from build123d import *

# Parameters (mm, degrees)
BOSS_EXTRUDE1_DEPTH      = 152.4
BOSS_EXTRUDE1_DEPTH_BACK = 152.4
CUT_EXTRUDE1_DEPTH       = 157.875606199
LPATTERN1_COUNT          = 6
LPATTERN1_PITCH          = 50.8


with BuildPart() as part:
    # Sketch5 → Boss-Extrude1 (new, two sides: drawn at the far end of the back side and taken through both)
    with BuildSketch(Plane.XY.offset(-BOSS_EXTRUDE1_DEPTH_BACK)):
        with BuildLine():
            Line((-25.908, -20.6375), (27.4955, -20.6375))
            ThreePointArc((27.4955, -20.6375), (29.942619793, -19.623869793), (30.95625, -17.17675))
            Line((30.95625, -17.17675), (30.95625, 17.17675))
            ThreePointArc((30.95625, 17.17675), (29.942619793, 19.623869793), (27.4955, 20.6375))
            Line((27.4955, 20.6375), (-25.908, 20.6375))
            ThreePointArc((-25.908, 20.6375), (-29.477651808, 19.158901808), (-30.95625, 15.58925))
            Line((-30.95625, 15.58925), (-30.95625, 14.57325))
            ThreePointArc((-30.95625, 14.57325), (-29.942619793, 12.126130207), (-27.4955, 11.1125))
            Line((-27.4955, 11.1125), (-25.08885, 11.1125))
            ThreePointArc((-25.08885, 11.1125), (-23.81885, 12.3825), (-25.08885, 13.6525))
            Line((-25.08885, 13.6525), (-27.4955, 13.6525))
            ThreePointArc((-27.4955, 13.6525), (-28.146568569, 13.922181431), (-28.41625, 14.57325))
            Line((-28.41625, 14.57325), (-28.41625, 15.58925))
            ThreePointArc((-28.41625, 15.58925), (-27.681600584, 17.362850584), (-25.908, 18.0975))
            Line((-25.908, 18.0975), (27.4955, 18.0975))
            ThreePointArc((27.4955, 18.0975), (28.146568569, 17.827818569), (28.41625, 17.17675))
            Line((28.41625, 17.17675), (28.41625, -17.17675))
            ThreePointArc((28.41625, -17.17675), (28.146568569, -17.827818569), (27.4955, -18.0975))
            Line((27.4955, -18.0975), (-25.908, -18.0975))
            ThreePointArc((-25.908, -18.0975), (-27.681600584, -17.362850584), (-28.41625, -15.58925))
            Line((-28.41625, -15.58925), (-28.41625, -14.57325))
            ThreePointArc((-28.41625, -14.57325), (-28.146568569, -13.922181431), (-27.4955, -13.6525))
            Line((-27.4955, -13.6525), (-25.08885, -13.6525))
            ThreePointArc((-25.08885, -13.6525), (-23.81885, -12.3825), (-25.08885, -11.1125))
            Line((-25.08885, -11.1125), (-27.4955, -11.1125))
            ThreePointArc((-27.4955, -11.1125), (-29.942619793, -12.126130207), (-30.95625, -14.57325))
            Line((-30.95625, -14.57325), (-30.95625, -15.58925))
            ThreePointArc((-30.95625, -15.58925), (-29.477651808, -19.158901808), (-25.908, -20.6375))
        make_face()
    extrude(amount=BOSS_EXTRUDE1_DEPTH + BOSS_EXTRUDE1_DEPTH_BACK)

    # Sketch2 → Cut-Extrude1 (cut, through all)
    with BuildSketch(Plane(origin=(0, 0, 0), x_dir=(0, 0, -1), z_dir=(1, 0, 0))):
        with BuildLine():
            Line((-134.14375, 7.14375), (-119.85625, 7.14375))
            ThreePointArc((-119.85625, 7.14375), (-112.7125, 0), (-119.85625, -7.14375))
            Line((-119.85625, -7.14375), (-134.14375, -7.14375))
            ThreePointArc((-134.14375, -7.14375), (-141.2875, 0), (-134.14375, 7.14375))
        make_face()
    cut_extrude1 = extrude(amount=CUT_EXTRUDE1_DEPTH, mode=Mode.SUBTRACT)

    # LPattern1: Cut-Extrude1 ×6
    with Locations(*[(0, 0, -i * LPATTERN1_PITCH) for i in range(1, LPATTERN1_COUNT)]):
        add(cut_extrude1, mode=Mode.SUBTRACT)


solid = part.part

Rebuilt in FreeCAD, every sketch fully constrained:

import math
import FreeCAD as App
import Part
import Sketcher
Q = App.Units.Quantity

doc = App.newDocument("Part")
params = doc.addObject("Spreadsheet::Sheet", "Params")
for row, (alias, value) in enumerate([
    ("sketch1_radius", "0.05 in"),
    ("sketch1_height", "0.04 in"),
    ("pad1_length", "6 in"),
    ("pad1_length2", "6 in"),
    ("sketch2_radius", "0.28125 in"),
    ("sketch2_height", "0.5625 in"),
    ("linearpattern_pitch", "2 in"),
], start=1):
    params.set(f"A{row}", alias)
    params.set(f"B{row}", "=" + value)
    params.setAlias(f"B{row}", alias)

body = doc.addObject("PartDesign::Body", "Body")

# Sketch on XY plane
sketch1 = doc.addObject("Sketcher::SketchObject", "Sketch")
body.addObject(sketch1)
sketch1.AttachmentSupport = (doc.XY_Plane, [""])
sketch1.MapMode = "FlatFace"
sketch1.addGeometry([
    Part.LineSegment(App.Vector(-25.9, -20.6, 0), App.Vector(27.5, -20.6, 0)),  # 0
    Part.ArcOfCircle(Part.Circle(App.Vector(27.5, -17.2, 0), App.Vector(0, 0, 1), 3.5), math.radians(-90), math.radians(0)),  # 1
    Part.LineSegment(App.Vector(31, -17.2, 0), App.Vector(31, 17.2, 0)),  # 2
    Part.ArcOfCircle(Part.Circle(App.Vector(27.5, 17.2, 0), App.Vector(0, 0, 1), 3.5), math.radians(0), math.radians(90)),  # 3
    Part.LineSegment(App.Vector(27.5, 20.6, 0), App.Vector(-25.9, 20.6, 0)),  # 4
    Part.ArcOfCircle(Part.Circle(App.Vector(-25.9, 15.6, 0), App.Vector(0, 0, 1), 5), math.radians(90), math.radians(180)),  # 5
    Part.LineSegment(App.Vector(-31, 15.6, 0), App.Vector(-31, 14.6, 0)),  # 6
    Part.ArcOfCircle(Part.Circle(App.Vector(-27.5, 14.6, 0), App.Vector(0, 0, 1), 3.5), math.radians(180), math.radians(270)),  # 7
    Part.LineSegment(App.Vector(-27.5, 11.1, 0), App.Vector(-25.1, 11.1, 0)),  # 8
    Part.ArcOfCircle(Part.Circle(App.Vector(-25.1, 12.4, 0), App.Vector(0, 0, 1), 1.3), math.radians(-90), math.radians(90)),  # 9
    Part.LineSegment(App.Vector(-25.1, 13.7, 0), App.Vector(-27.5, 13.7, 0)),  # 10
    Part.ArcOfCircle(Part.Circle(App.Vector(-27.5, 14.6, 0), App.Vector(0, 0, 1), 0.9), math.radians(180), math.radians(270)),  # 11
    Part.LineSegment(App.Vector(-28.4, 14.6, 0), App.Vector(-28.4, 15.6, 0)),  # 12
    Part.ArcOfCircle(Part.Circle(App.Vector(-25.9, 15.6, 0), App.Vector(0, 0, 1), 2.5), math.radians(90), math.radians(180)),  # 13
    Part.LineSegment(App.Vector(-25.9, 18.1, 0), App.Vector(27.5, 18.1, 0)),  # 14
    Part.ArcOfCircle(Part.Circle(App.Vector(27.5, 17.2, 0), App.Vector(0, 0, 1), 0.9), math.radians(0), math.radians(90)),  # 15
    Part.LineSegment(App.Vector(28.4, 17.2, 0), App.Vector(28.4, -17.2, 0)),  # 16
    Part.ArcOfCircle(Part.Circle(App.Vector(27.5, -17.2, 0), App.Vector(0, 0, 1), 0.9), math.radians(-90), math.radians(0)),  # 17
    Part.LineSegment(App.Vector(27.5, -18.1, 0), App.Vector(-25.9, -18.1, 0)),  # 18
    Part.ArcOfCircle(Part.Circle(App.Vector(-25.9, -15.6, 0), App.Vector(0, 0, 1), 2.5), math.radians(180), math.radians(270)),  # 19
    Part.LineSegment(App.Vector(-28.4, -15.6, 0), App.Vector(-28.4, -14.6, 0)),  # 20
    Part.ArcOfCircle(Part.Circle(App.Vector(-27.5, -14.6, 0), App.Vector(0, 0, 1), 0.9), math.radians(90), math.radians(180)),  # 21
    Part.LineSegment(App.Vector(-27.5, -13.7, 0), App.Vector(-25.1, -13.7, 0)),  # 22
    Part.ArcOfCircle(Part.Circle(App.Vector(-25.1, -12.4, 0), App.Vector(0, 0, 1), 1.3), math.radians(-90), math.radians(90)),  # 23
    Part.LineSegment(App.Vector(-25.1, -11.1, 0), App.Vector(-27.5, -11.1, 0)),  # 24
    Part.ArcOfCircle(Part.Circle(App.Vector(-27.5, -14.6, 0), App.Vector(0, 0, 1), 3.5), math.radians(90), math.radians(180)),  # 25
    Part.LineSegment(App.Vector(-31, -14.6, 0), App.Vector(-31, -15.6, 0)),  # 26
    Part.ArcOfCircle(Part.Circle(App.Vector(-25.9, -15.6, 0), App.Vector(0, 0, 1), 5), math.radians(180), math.radians(270)),  # 27
], False)
sketch1.addConstraint([
    Sketcher.Constraint("Tangent", 0, 2, 1, 1),
    Sketcher.Constraint("Tangent", 1, 2, 2, 1),
    Sketcher.Constraint("Tangent", 2, 2, 3, 1),
    Sketcher.Constraint("Tangent", 3, 2, 4, 1),
    Sketcher.Constraint("Tangent", 4, 2, 5, 1),
    Sketcher.Constraint("Tangent", 5, 2, 6, 1),
    Sketcher.Constraint("Tangent", 6, 2, 7, 1),
    Sketcher.Constraint("Tangent", 7, 2, 8, 1),
    Sketcher.Constraint("Tangent", 8, 2, 9, 1),
    Sketcher.Constraint("Tangent", 9, 2, 10, 1),
    Sketcher.Constraint("Tangent", 10, 2, 11, 2),
    Sketcher.Constraint("Tangent", 11, 1, 12, 1),
    Sketcher.Constraint("Tangent", 12, 2, 13, 2),
    Sketcher.Constraint("Tangent", 13, 1, 14, 1),
    Sketcher.Constraint("Tangent", 14, 2, 15, 2),
    Sketcher.Constraint("Tangent", 15, 1, 16, 1),
    Sketcher.Constraint("Tangent", 16, 2, 17, 2),
    Sketcher.Constraint("Tangent", 17, 1, 18, 1),
    Sketcher.Constraint("Tangent", 18, 2, 19, 2),
    Sketcher.Constraint("Tangent", 19, 1, 20, 1),
    Sketcher.Constraint("Tangent", 20, 2, 21, 2),
    Sketcher.Constraint("Tangent", 21, 1, 22, 1),
    Sketcher.Constraint("Tangent", 22, 2, 23, 1),
    Sketcher.Constraint("Tangent", 23, 2, 24, 1),
    Sketcher.Constraint("Tangent", 24, 2, 25, 1),
    Sketcher.Constraint("Tangent", 25, 2, 26, 1),
    Sketcher.Constraint("Tangent", 26, 2, 27, 1),
    Sketcher.Constraint("Tangent", 27, 2, 0, 1),
    Sketcher.Constraint("Horizontal", 0),
    Sketcher.Constraint("Vertical", 2),
    Sketcher.Constraint("Horizontal", 4),
    Sketcher.Constraint("Vertical", 6),
    Sketcher.Constraint("Horizontal", 8),
    Sketcher.Constraint("Horizontal", 10),
    Sketcher.Constraint("Vertical", 12),
    Sketcher.Constraint("Horizontal", 14),
    Sketcher.Constraint("Vertical", 16),
    Sketcher.Constraint("Horizontal", 18),
    Sketcher.Constraint("Vertical", 20),
    Sketcher.Constraint("Horizontal", 22),
    Sketcher.Constraint("Horizontal", 24),
    Sketcher.Constraint("Vertical", 26),
    Sketcher.Constraint("Coincident", 11, 3, 7, 3),
    Sketcher.Constraint("Coincident", 13, 3, 5, 3),
    Sketcher.Constraint("Coincident", 15, 3, 3, 3),
    Sketcher.Constraint("Coincident", 17, 3, 1, 3),
    Sketcher.Constraint("Coincident", 25, 3, 21, 3),
    Sketcher.Constraint("Coincident", 27, 3, 19, 3),
    Sketcher.Constraint("Equal", 1, 3),
    Sketcher.Constraint("Equal", 3, 7),
    Sketcher.Constraint("Equal", 13, 19),
    Sketcher.Constraint("Equal", 17, 21),
    Sketcher.Constraint("Symmetric", 5, 3, 19, 3, -1),
    Sketcher.Constraint("Symmetric", 9, 3, 23, 3, -1),
    Sketcher.Constraint("Radius", 9, Q("0.05 in")),
    Sketcher.Constraint("DistanceY", 6, 2, 6, 1, Q("0.04 in")),
    Sketcher.Constraint("DistanceX", 5, 3, -1, 1, Q("1.02 in")),
    Sketcher.Constraint("DistanceY", 1, 3, 5, 3, Q("1.29 in")),
    Sketcher.Constraint("DistanceX", 0, 1, 0, 2, Q("2.1025 in")),
    Sketcher.Constraint("DistanceY", 2, 1, 2, 2, Q("1.3525 in")),
    Sketcher.Constraint("DistanceY", 0, 2, -1, 1, Q("0.8125 in")),
    Sketcher.Constraint("DistanceX", 5, 2, 9, 3, Q("0.231 in")),
])
sketch1.setExpression("Constraints[54]", "Params.sketch1_radius")
sketch1.setExpression("Constraints[55]", "Params.sketch1_height")
pad1 = doc.addObject("PartDesign::Pad", "Pad")
body.addObject(pad1)
pad1.Profile = sketch1
pad1.Type = "TwoLengths"
pad1.setExpression("Length", "Params.pad1_length")
pad1.setExpression("Length2", "Params.pad1_length2")

# Sketch on YZ plane
sketch2 = doc.addObject("Sketcher::SketchObject", "Sketch001")
body.addObject(sketch2)
sketch2.AttachmentSupport = (doc.YZ_Plane, [""])
sketch2.MapMode = "FlatFace"
sketch2.addGeometry([
    Part.LineSegment(App.Vector(7, 120, 0), App.Vector(7, 134, 0)),
    Part.ArcOfCircle(Part.Circle(App.Vector(0, 134, 0), App.Vector(0, 0, 1), 7), math.radians(0), math.radians(180)),
    Part.LineSegment(App.Vector(-7, 134, 0), App.Vector(-7, 120, 0)),
    Part.ArcOfCircle(Part.Circle(App.Vector(0, 120, 0), App.Vector(0, 0, 1), 7), math.radians(180), math.radians(360)),
], False)
sketch2.addConstraint([
    Sketcher.Constraint("Tangent", 0, 2, 1, 1),
    Sketcher.Constraint("Tangent", 1, 2, 2, 1),
    Sketcher.Constraint("Tangent", 2, 2, 3, 1),
    Sketcher.Constraint("Tangent", 3, 2, 0, 1),
    Sketcher.Constraint("Vertical", 0),
    Sketcher.Constraint("Vertical", 2),
    Sketcher.Constraint("PointOnObject", 1, 3, -2),
    Sketcher.Constraint("Radius", 1, Q("0.28125 in")),
    Sketcher.Constraint("DistanceY", 0, 1, 0, 2, Q("0.5625 in")),
    Sketcher.Constraint("DistanceY", -1, 1, 1, 3, Q("5.28125 in")),
])
sketch2.setExpression("Constraints[7]", "Params.sketch2_radius")
sketch2.setExpression("Constraints[8]", "Params.sketch2_height")
pocket1 = doc.addObject("PartDesign::Pocket", "Pocket")
body.addObject(pocket1)
pocket1.Profile = sketch2
pocket1.Type = "ThroughAll"
pocket1.Reversed = True
doc.recompute()

linearpattern = doc.addObject("PartDesign::LinearPattern", "LinearPattern")
body.addObject(linearpattern)
linearpattern.Originals = [pocket1]
linearpattern.Direction = (doc.Z_Axis, [""])
linearpattern.Mode = "offset"
linearpattern.setExpression("Offset", "Params.linearpattern_pitch")
linearpattern.Occurrences = 6
linearpattern.Reversed = True
body.Tip = linearpattern

doc.recompute()
